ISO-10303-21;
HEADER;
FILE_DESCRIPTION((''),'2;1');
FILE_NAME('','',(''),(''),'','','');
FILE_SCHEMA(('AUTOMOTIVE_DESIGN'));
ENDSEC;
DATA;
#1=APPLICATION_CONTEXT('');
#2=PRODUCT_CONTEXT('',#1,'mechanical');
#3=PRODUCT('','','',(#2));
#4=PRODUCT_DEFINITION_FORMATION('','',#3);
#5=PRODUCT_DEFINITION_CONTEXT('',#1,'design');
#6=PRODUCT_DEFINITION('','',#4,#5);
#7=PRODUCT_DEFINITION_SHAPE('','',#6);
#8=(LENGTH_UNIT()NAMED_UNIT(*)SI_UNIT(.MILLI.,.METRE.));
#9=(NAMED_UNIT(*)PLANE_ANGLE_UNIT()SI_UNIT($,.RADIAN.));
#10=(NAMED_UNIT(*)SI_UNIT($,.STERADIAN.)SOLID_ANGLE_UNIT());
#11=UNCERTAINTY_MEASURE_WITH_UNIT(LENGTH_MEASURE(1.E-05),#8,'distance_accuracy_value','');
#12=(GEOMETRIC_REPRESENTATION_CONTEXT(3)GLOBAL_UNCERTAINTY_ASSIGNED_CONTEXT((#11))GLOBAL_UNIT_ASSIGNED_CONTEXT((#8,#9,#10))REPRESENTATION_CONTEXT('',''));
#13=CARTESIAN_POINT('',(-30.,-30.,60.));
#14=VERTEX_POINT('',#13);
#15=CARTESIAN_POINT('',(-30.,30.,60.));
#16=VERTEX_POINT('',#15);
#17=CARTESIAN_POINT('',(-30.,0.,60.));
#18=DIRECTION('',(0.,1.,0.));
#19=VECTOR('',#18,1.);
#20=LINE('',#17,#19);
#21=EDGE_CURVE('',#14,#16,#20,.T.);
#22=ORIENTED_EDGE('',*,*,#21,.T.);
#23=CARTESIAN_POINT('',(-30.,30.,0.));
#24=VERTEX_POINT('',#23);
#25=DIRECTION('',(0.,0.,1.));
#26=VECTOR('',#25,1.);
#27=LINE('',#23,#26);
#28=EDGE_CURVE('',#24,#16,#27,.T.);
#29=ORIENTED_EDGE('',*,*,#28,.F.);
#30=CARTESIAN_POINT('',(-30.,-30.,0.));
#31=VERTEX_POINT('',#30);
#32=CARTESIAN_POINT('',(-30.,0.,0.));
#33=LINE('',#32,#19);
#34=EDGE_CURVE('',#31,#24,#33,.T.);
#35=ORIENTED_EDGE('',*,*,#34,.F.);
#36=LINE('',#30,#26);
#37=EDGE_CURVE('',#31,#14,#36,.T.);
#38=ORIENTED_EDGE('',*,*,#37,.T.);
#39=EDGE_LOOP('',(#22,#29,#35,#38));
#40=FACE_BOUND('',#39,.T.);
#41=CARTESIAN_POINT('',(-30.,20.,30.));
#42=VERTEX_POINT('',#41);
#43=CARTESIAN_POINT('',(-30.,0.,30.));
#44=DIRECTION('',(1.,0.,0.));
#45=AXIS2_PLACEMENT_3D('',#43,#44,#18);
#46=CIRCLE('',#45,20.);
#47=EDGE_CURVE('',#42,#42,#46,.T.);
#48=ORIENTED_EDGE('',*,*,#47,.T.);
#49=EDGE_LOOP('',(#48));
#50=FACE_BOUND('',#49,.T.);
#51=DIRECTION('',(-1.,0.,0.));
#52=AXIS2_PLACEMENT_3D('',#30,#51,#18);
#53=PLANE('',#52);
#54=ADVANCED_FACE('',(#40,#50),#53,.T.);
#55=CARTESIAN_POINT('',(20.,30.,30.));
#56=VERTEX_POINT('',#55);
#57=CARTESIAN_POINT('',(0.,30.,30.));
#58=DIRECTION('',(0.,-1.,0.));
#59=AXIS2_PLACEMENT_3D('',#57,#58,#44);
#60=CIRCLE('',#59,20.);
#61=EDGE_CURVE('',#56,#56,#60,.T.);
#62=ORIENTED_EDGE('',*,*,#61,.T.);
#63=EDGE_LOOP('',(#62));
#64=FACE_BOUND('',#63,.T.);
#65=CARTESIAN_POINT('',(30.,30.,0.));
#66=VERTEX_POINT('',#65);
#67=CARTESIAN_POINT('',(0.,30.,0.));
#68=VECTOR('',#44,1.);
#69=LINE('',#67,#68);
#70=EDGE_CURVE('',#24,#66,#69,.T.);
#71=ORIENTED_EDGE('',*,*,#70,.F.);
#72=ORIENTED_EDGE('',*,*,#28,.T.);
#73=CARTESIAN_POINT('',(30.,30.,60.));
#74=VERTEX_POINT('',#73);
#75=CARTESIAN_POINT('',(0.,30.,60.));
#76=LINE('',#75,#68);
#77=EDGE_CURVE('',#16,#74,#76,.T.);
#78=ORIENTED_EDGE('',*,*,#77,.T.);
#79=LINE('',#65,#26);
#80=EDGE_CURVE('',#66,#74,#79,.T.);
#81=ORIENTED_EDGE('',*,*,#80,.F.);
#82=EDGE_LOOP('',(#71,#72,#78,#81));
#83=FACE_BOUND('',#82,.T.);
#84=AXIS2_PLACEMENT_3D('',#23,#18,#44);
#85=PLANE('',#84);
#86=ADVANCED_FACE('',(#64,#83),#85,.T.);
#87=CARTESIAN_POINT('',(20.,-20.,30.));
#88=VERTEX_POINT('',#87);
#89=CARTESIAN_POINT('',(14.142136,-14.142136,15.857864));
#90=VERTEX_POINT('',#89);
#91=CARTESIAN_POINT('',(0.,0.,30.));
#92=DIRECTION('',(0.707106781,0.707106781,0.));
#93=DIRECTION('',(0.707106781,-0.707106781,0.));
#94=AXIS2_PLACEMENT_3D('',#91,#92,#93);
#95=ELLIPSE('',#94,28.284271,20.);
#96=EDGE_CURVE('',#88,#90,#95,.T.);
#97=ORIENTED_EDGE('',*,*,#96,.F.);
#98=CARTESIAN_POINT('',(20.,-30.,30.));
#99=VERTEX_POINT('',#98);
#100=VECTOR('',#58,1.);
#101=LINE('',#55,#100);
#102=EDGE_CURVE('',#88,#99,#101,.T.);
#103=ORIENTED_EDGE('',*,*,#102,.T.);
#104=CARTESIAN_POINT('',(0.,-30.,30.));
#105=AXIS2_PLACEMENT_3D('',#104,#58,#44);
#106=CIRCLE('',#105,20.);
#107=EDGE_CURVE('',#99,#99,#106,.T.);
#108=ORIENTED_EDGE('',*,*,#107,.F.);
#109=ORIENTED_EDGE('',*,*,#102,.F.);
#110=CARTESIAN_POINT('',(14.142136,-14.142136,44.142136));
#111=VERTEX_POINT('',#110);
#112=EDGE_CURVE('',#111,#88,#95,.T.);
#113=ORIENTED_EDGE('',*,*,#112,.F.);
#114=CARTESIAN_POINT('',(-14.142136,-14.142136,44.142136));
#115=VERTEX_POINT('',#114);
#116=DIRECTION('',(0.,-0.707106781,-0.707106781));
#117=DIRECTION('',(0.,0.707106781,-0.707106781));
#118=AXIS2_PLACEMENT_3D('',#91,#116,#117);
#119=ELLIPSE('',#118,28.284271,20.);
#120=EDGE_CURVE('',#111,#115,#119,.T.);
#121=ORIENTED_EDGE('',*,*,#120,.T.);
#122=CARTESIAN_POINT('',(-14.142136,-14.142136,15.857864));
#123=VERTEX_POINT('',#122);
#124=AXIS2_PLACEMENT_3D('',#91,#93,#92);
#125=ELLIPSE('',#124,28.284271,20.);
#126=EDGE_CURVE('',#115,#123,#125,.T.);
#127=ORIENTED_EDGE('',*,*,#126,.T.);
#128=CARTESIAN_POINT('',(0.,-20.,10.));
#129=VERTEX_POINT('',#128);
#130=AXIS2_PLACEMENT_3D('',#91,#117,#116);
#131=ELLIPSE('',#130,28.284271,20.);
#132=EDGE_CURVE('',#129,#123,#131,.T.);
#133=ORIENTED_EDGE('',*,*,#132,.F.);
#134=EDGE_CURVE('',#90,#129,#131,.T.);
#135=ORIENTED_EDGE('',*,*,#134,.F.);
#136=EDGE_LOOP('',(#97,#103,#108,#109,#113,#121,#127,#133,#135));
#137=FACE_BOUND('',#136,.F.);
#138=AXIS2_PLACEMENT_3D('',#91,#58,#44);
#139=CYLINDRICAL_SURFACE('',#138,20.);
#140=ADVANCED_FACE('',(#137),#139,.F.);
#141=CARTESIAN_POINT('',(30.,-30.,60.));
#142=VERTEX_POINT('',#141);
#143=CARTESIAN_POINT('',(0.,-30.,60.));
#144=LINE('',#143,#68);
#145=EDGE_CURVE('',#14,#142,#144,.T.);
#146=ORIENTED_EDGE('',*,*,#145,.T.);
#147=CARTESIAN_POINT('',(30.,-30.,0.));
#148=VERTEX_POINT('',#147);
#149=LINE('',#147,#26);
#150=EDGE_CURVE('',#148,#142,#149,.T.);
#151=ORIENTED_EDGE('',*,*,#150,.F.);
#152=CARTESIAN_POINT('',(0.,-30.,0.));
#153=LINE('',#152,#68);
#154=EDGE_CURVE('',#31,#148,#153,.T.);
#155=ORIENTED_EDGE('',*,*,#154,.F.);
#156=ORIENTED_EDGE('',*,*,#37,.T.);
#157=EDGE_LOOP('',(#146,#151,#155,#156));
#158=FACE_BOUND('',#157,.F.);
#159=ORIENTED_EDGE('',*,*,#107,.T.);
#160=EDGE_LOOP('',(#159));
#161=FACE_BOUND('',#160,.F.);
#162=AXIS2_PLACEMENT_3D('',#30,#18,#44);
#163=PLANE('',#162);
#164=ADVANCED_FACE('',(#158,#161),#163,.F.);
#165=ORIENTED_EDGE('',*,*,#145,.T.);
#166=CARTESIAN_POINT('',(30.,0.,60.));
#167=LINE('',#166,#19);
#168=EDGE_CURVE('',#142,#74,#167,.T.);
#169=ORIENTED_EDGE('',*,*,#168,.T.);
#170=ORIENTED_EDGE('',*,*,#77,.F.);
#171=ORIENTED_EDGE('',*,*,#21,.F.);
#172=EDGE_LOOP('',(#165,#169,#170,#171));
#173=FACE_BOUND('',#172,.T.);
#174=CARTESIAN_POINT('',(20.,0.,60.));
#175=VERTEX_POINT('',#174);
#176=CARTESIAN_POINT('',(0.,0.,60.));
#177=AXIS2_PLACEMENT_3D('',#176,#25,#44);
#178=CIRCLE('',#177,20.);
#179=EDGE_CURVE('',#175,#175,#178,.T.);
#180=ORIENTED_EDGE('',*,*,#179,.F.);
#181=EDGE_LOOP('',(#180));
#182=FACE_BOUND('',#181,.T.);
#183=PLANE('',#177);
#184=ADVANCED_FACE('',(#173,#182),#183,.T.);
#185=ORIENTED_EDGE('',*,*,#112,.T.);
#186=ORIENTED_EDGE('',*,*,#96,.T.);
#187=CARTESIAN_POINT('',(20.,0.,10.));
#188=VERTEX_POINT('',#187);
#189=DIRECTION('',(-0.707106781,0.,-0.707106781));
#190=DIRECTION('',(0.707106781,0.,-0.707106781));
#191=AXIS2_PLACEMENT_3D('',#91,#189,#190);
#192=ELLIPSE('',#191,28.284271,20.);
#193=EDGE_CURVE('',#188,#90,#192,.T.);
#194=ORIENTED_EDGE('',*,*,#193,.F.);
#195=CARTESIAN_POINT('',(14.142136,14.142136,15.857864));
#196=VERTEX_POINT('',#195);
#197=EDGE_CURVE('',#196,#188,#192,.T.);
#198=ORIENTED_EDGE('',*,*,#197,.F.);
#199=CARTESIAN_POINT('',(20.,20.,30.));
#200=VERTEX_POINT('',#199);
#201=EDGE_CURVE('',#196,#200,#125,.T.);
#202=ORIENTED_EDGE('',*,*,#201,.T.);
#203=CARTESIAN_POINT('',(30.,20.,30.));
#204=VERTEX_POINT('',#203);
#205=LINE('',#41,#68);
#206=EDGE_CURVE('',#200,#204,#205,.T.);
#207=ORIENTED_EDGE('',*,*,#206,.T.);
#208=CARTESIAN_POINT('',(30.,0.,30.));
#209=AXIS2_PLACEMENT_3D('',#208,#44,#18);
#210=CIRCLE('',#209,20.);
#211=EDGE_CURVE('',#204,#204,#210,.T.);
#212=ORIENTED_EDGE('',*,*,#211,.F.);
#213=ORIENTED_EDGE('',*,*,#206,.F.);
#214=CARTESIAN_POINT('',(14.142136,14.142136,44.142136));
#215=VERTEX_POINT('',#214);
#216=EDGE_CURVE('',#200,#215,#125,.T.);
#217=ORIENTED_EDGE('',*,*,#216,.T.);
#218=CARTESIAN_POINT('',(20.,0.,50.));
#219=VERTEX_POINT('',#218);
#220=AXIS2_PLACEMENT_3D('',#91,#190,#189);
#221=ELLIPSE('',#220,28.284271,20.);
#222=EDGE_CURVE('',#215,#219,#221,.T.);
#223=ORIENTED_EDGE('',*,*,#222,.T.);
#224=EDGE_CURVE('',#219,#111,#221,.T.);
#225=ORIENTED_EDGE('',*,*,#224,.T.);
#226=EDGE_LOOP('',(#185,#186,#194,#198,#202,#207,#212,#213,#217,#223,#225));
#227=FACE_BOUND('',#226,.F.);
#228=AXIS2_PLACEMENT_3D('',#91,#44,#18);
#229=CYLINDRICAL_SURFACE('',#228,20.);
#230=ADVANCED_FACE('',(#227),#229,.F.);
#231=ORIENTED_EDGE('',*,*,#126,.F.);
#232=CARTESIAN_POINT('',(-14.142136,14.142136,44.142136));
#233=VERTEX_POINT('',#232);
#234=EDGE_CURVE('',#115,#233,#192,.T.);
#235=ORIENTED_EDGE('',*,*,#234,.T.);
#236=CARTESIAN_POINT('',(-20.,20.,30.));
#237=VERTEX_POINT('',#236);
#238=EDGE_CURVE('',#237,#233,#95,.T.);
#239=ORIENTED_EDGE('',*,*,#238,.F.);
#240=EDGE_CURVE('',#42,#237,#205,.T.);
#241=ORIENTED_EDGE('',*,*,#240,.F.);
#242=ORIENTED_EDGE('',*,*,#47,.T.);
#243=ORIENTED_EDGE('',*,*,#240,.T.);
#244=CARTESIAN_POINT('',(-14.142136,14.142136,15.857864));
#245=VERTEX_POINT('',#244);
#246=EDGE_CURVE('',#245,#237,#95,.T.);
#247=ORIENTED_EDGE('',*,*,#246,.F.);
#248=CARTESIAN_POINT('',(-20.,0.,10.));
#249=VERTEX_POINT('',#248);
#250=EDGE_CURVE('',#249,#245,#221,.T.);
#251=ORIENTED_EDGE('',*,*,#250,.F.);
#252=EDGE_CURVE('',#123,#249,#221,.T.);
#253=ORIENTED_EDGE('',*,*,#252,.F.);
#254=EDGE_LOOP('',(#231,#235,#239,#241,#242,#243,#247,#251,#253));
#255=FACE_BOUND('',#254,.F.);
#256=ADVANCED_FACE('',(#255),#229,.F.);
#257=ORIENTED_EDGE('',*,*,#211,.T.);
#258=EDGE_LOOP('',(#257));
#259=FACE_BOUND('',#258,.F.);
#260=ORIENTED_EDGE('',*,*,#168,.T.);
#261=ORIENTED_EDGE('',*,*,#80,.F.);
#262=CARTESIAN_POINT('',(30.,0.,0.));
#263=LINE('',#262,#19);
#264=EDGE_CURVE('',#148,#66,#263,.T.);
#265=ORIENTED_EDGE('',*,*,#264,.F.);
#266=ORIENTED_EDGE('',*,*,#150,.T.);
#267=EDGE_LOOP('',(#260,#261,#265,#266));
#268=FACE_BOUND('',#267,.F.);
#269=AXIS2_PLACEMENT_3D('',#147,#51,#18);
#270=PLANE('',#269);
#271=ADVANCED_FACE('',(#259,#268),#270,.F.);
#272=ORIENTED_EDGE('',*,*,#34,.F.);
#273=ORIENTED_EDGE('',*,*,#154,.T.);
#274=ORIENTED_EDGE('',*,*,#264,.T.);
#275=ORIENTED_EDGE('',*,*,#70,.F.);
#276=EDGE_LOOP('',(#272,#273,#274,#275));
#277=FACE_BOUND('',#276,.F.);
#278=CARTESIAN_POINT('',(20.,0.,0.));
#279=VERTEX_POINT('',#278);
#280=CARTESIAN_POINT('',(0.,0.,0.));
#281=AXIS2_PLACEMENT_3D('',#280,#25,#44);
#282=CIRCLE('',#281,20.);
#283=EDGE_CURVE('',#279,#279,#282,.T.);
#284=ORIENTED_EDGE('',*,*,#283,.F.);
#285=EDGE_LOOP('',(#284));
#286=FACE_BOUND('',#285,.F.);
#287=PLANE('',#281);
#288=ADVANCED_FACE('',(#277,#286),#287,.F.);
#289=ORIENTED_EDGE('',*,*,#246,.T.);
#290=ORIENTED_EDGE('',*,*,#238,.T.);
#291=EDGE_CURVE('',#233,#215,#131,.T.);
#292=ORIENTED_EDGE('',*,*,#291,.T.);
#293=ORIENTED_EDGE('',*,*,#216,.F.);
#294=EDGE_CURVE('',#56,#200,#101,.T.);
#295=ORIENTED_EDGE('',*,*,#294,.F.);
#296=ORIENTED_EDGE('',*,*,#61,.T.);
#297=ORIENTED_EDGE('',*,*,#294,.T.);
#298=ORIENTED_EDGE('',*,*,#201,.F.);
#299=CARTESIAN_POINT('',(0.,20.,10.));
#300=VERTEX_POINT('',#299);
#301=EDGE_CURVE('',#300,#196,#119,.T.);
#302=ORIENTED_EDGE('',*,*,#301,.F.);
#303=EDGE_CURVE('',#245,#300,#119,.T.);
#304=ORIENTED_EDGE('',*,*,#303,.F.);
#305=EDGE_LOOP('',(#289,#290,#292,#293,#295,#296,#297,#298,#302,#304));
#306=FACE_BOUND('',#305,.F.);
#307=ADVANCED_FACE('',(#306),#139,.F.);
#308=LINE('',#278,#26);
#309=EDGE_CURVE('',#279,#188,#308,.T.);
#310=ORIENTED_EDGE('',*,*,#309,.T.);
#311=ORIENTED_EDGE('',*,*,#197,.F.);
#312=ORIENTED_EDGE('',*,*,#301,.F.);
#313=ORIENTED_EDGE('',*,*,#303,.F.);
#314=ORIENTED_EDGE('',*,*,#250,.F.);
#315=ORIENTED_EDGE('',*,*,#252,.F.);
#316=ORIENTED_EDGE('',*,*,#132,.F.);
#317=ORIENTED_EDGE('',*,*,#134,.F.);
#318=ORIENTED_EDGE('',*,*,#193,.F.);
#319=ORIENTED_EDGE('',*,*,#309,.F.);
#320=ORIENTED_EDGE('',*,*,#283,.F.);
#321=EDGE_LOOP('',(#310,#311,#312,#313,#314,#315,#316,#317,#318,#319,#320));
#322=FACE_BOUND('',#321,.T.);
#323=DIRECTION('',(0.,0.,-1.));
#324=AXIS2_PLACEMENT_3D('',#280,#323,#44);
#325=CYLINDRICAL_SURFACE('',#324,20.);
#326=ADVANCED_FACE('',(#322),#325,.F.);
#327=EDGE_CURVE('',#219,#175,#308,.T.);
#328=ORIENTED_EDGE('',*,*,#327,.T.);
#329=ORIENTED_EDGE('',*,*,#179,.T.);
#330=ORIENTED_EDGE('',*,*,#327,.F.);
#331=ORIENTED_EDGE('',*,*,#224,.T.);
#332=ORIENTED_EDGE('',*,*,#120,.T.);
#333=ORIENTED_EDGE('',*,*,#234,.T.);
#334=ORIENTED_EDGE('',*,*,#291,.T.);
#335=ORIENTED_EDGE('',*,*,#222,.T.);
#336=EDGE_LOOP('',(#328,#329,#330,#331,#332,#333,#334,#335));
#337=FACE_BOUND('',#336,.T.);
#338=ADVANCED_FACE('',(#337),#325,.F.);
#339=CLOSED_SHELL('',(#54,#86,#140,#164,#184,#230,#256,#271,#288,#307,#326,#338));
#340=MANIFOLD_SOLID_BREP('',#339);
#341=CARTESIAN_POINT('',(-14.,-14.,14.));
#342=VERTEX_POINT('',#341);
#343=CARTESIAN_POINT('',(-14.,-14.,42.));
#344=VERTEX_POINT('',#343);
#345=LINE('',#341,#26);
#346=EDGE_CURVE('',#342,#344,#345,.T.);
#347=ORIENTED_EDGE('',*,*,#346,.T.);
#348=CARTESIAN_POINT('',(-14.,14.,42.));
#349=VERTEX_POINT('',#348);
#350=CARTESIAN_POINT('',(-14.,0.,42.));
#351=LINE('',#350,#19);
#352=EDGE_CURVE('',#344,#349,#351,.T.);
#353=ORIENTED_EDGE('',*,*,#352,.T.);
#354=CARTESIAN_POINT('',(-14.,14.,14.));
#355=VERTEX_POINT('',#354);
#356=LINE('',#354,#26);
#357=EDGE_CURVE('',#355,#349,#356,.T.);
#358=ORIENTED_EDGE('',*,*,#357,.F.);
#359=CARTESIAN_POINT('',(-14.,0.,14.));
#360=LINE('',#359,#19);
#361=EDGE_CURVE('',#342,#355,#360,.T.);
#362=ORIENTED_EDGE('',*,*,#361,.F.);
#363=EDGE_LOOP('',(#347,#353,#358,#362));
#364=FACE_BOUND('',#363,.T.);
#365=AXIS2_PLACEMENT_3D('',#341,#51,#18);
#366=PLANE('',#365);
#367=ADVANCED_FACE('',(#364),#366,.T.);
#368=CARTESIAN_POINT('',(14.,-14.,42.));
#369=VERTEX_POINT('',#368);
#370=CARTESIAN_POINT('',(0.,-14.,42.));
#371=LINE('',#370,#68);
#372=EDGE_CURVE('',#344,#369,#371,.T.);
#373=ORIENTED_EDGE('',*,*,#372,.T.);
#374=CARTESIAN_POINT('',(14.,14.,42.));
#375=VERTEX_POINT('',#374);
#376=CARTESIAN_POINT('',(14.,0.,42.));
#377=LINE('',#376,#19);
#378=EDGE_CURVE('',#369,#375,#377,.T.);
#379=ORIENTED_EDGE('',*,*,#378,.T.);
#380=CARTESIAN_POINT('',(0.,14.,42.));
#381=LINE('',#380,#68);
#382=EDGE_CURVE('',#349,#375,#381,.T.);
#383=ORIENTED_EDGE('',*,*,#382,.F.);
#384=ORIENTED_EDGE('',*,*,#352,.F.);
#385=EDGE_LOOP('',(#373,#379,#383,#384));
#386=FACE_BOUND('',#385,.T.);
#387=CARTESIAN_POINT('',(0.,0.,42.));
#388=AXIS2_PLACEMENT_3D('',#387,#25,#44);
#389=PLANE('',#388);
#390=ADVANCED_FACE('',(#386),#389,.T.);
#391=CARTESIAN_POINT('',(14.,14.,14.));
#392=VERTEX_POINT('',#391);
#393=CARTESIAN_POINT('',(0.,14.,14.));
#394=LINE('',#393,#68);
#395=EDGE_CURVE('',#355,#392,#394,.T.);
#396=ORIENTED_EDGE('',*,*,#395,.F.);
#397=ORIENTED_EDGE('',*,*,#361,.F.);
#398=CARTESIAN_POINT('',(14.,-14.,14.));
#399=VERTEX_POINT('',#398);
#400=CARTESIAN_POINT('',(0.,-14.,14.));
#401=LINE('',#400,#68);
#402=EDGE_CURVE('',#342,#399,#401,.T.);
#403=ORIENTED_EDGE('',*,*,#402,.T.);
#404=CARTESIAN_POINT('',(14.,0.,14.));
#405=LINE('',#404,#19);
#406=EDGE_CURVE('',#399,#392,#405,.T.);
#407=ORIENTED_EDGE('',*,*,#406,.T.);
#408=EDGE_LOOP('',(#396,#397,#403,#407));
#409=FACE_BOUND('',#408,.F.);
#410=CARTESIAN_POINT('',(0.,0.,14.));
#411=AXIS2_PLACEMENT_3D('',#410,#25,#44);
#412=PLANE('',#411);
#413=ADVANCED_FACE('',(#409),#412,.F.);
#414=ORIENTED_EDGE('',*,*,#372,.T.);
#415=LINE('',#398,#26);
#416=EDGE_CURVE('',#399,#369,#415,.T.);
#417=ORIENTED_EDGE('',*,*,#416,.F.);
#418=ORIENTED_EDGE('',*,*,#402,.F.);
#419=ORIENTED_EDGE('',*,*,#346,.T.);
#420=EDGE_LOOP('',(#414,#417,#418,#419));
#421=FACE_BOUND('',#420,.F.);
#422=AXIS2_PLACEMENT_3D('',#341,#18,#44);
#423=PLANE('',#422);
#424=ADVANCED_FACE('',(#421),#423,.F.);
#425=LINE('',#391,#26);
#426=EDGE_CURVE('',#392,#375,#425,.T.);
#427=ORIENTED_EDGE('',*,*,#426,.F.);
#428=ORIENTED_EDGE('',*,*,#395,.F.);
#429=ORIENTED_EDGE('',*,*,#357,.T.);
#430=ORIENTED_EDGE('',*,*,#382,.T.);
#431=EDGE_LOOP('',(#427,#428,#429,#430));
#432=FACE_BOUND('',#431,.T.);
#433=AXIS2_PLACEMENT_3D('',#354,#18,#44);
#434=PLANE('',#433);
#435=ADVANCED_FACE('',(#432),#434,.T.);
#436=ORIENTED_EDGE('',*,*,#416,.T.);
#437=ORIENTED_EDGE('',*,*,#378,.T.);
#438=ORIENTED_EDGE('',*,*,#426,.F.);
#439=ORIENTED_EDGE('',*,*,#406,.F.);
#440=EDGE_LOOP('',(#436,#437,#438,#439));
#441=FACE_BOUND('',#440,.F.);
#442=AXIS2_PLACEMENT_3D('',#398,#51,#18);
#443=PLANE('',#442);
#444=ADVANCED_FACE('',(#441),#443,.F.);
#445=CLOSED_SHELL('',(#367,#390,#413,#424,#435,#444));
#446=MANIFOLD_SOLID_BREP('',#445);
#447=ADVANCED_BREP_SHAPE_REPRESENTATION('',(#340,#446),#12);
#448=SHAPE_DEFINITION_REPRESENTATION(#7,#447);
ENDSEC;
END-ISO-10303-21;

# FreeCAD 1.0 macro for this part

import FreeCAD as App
import Part
import Sketcher
from FreeCAD import Vector
Q = App.Units.Quantity

doc = App.newDocument("Part")
body = doc.addObject("PartDesign::Body", "Body")

# Sketch on XY plane
sketch1 = body.newObject("Sketcher::SketchObject", "Sketch")
sketch1.AttachmentSupport = (doc.getObject("XY_Plane"), [""])
sketch1.MapMode = "FlatFace"
sketch1.addGeometry([
    Part.LineSegment(Vector(-30, 30, 0), Vector(-30, -30, 0)),  # 0
    Part.LineSegment(Vector(-30, -30, 0), Vector(30, -30, 0)),  # 1
    Part.LineSegment(Vector(30, -30, 0), Vector(30, 30, 0)),  # 2
    Part.LineSegment(Vector(30, 30, 0), Vector(-30, 30, 0)),  # 3
    Part.Circle(Vector(0, 0, 0), Vector(0, 0, 1), 20),  # 4
], False)
sketch1.addConstraint([
    Sketcher.Constraint("Coincident", 0, 2, 1, 1),
    Sketcher.Constraint("Coincident", 1, 2, 2, 1),
    Sketcher.Constraint("Coincident", 2, 2, 3, 1),
    Sketcher.Constraint("Coincident", 3, 2, 0, 1),
    Sketcher.Constraint("Vertical", 0),
    Sketcher.Constraint("Horizontal", 1),
    Sketcher.Constraint("Vertical", 2),
    Sketcher.Constraint("Horizontal", 3),
    Sketcher.Constraint("Coincident", 4, 3, -1, 1),
    Sketcher.Constraint("Symmetric", 0, 2, 2, 2, -1, 1),
    Sketcher.Constraint("Equal", 3, 0),
    Sketcher.Constraint("Diameter", 4, Q("40 mm")),
    Sketcher.Constraint("DistanceX", 1, 1, 1, 2, Q("60 mm")),
])
pad1 = body.newObject("PartDesign::Pad", "Pad")
pad1.Profile = sketch1
pad1.Length = 60

# Sketch on YZ plane
sketch2 = body.newObject("Sketcher::SketchObject", "Sketch001")
sketch2.AttachmentSupport = (doc.getObject("YZ_Plane"), [""])
sketch2.MapMode = "FlatFace"
sketch2.addGeometry(Part.Circle(Vector(0, 30, 0), Vector(0, 0, 1), 20), False)
sketch2.addConstraint([
    Sketcher.Constraint("PointOnObject", 0, 3, -2),
    Sketcher.Constraint("Diameter", 0, Q("40 mm")),
    Sketcher.Constraint("DistanceY", -1, 1, 0, 3, Q("30 mm")),
])
pocket1 = body.newObject("PartDesign::Pocket", "Pocket")
pocket1.Profile = sketch2
pocket1.Length = 60
pocket1.Midplane = True

# Sketch on XZ plane
sketch3 = body.newObject("Sketcher::SketchObject", "Sketch002")
sketch3.AttachmentSupport = (doc.getObject("XZ_Plane"), [""])
sketch3.MapMode = "FlatFace"
sketch3.addGeometry(Part.Circle(Vector(0, 30, 0), Vector(0, 0, 1), 20), False)
sketch3.addConstraint([
    Sketcher.Constraint("PointOnObject", 0, 3, -2),
    Sketcher.Constraint("Diameter", 0, Q("40 mm")),
    Sketcher.Constraint("DistanceY", -1, 1, 0, 3, Q("30 mm")),
])
pocket2 = body.newObject("PartDesign::Pocket", "Pocket001")
pocket2.Profile = sketch3
pocket2.Length = 60
pocket2.Midplane = True
body2 = doc.addObject("PartDesign::Body", "Body001")

# Sketch on XY plane
sketch4 = body2.newObject("Sketcher::SketchObject", "Sketch003")
sketch4.AttachmentSupport = (doc.getObject("XY_Plane001"), [""])
sketch4.MapMode = "FlatFace"
sketch4.AttachmentOffset = App.Placement(Vector(0, 0, 14), App.Rotation())
sketch4.addGeometry([
    Part.LineSegment(Vector(-14, 14, 0), Vector(-14, -14, 0)),
    Part.LineSegment(Vector(-14, -14, 0), Vector(14, -14, 0)),
    Part.LineSegment(Vector(14, -14, 0), Vector(14, 14, 0)),
    Part.LineSegment(Vector(14, 14, 0), Vector(-14, 14, 0)),
], False)
sketch4.addConstraint([
    Sketcher.Constraint("Coincident", 0, 2, 1, 1),
    Sketcher.Constraint("Coincident", 1, 2, 2, 1),
    Sketcher.Constraint("Coincident", 2, 2, 3, 1),
    Sketcher.Constraint("Coincident", 3, 2, 0, 1),
    Sketcher.Constraint("Vertical", 0),
    Sketcher.Constraint("Horizontal", 1),
    Sketcher.Constraint("Vertical", 2),
    Sketcher.Constraint("Horizontal", 3),
    Sketcher.Constraint("Symmetric", 0, 2, 2, 2, -1, 1),
    Sketcher.Constraint("Equal", 3, 0),
    Sketcher.Constraint("DistanceX", 1, 1, 1, 2, Q("28 mm")),
])
pad2 = body2.newObject("PartDesign::Pad", "Pad001")
pad2.Profile = sketch4
pad2.Length = 28

doc.recompute()
